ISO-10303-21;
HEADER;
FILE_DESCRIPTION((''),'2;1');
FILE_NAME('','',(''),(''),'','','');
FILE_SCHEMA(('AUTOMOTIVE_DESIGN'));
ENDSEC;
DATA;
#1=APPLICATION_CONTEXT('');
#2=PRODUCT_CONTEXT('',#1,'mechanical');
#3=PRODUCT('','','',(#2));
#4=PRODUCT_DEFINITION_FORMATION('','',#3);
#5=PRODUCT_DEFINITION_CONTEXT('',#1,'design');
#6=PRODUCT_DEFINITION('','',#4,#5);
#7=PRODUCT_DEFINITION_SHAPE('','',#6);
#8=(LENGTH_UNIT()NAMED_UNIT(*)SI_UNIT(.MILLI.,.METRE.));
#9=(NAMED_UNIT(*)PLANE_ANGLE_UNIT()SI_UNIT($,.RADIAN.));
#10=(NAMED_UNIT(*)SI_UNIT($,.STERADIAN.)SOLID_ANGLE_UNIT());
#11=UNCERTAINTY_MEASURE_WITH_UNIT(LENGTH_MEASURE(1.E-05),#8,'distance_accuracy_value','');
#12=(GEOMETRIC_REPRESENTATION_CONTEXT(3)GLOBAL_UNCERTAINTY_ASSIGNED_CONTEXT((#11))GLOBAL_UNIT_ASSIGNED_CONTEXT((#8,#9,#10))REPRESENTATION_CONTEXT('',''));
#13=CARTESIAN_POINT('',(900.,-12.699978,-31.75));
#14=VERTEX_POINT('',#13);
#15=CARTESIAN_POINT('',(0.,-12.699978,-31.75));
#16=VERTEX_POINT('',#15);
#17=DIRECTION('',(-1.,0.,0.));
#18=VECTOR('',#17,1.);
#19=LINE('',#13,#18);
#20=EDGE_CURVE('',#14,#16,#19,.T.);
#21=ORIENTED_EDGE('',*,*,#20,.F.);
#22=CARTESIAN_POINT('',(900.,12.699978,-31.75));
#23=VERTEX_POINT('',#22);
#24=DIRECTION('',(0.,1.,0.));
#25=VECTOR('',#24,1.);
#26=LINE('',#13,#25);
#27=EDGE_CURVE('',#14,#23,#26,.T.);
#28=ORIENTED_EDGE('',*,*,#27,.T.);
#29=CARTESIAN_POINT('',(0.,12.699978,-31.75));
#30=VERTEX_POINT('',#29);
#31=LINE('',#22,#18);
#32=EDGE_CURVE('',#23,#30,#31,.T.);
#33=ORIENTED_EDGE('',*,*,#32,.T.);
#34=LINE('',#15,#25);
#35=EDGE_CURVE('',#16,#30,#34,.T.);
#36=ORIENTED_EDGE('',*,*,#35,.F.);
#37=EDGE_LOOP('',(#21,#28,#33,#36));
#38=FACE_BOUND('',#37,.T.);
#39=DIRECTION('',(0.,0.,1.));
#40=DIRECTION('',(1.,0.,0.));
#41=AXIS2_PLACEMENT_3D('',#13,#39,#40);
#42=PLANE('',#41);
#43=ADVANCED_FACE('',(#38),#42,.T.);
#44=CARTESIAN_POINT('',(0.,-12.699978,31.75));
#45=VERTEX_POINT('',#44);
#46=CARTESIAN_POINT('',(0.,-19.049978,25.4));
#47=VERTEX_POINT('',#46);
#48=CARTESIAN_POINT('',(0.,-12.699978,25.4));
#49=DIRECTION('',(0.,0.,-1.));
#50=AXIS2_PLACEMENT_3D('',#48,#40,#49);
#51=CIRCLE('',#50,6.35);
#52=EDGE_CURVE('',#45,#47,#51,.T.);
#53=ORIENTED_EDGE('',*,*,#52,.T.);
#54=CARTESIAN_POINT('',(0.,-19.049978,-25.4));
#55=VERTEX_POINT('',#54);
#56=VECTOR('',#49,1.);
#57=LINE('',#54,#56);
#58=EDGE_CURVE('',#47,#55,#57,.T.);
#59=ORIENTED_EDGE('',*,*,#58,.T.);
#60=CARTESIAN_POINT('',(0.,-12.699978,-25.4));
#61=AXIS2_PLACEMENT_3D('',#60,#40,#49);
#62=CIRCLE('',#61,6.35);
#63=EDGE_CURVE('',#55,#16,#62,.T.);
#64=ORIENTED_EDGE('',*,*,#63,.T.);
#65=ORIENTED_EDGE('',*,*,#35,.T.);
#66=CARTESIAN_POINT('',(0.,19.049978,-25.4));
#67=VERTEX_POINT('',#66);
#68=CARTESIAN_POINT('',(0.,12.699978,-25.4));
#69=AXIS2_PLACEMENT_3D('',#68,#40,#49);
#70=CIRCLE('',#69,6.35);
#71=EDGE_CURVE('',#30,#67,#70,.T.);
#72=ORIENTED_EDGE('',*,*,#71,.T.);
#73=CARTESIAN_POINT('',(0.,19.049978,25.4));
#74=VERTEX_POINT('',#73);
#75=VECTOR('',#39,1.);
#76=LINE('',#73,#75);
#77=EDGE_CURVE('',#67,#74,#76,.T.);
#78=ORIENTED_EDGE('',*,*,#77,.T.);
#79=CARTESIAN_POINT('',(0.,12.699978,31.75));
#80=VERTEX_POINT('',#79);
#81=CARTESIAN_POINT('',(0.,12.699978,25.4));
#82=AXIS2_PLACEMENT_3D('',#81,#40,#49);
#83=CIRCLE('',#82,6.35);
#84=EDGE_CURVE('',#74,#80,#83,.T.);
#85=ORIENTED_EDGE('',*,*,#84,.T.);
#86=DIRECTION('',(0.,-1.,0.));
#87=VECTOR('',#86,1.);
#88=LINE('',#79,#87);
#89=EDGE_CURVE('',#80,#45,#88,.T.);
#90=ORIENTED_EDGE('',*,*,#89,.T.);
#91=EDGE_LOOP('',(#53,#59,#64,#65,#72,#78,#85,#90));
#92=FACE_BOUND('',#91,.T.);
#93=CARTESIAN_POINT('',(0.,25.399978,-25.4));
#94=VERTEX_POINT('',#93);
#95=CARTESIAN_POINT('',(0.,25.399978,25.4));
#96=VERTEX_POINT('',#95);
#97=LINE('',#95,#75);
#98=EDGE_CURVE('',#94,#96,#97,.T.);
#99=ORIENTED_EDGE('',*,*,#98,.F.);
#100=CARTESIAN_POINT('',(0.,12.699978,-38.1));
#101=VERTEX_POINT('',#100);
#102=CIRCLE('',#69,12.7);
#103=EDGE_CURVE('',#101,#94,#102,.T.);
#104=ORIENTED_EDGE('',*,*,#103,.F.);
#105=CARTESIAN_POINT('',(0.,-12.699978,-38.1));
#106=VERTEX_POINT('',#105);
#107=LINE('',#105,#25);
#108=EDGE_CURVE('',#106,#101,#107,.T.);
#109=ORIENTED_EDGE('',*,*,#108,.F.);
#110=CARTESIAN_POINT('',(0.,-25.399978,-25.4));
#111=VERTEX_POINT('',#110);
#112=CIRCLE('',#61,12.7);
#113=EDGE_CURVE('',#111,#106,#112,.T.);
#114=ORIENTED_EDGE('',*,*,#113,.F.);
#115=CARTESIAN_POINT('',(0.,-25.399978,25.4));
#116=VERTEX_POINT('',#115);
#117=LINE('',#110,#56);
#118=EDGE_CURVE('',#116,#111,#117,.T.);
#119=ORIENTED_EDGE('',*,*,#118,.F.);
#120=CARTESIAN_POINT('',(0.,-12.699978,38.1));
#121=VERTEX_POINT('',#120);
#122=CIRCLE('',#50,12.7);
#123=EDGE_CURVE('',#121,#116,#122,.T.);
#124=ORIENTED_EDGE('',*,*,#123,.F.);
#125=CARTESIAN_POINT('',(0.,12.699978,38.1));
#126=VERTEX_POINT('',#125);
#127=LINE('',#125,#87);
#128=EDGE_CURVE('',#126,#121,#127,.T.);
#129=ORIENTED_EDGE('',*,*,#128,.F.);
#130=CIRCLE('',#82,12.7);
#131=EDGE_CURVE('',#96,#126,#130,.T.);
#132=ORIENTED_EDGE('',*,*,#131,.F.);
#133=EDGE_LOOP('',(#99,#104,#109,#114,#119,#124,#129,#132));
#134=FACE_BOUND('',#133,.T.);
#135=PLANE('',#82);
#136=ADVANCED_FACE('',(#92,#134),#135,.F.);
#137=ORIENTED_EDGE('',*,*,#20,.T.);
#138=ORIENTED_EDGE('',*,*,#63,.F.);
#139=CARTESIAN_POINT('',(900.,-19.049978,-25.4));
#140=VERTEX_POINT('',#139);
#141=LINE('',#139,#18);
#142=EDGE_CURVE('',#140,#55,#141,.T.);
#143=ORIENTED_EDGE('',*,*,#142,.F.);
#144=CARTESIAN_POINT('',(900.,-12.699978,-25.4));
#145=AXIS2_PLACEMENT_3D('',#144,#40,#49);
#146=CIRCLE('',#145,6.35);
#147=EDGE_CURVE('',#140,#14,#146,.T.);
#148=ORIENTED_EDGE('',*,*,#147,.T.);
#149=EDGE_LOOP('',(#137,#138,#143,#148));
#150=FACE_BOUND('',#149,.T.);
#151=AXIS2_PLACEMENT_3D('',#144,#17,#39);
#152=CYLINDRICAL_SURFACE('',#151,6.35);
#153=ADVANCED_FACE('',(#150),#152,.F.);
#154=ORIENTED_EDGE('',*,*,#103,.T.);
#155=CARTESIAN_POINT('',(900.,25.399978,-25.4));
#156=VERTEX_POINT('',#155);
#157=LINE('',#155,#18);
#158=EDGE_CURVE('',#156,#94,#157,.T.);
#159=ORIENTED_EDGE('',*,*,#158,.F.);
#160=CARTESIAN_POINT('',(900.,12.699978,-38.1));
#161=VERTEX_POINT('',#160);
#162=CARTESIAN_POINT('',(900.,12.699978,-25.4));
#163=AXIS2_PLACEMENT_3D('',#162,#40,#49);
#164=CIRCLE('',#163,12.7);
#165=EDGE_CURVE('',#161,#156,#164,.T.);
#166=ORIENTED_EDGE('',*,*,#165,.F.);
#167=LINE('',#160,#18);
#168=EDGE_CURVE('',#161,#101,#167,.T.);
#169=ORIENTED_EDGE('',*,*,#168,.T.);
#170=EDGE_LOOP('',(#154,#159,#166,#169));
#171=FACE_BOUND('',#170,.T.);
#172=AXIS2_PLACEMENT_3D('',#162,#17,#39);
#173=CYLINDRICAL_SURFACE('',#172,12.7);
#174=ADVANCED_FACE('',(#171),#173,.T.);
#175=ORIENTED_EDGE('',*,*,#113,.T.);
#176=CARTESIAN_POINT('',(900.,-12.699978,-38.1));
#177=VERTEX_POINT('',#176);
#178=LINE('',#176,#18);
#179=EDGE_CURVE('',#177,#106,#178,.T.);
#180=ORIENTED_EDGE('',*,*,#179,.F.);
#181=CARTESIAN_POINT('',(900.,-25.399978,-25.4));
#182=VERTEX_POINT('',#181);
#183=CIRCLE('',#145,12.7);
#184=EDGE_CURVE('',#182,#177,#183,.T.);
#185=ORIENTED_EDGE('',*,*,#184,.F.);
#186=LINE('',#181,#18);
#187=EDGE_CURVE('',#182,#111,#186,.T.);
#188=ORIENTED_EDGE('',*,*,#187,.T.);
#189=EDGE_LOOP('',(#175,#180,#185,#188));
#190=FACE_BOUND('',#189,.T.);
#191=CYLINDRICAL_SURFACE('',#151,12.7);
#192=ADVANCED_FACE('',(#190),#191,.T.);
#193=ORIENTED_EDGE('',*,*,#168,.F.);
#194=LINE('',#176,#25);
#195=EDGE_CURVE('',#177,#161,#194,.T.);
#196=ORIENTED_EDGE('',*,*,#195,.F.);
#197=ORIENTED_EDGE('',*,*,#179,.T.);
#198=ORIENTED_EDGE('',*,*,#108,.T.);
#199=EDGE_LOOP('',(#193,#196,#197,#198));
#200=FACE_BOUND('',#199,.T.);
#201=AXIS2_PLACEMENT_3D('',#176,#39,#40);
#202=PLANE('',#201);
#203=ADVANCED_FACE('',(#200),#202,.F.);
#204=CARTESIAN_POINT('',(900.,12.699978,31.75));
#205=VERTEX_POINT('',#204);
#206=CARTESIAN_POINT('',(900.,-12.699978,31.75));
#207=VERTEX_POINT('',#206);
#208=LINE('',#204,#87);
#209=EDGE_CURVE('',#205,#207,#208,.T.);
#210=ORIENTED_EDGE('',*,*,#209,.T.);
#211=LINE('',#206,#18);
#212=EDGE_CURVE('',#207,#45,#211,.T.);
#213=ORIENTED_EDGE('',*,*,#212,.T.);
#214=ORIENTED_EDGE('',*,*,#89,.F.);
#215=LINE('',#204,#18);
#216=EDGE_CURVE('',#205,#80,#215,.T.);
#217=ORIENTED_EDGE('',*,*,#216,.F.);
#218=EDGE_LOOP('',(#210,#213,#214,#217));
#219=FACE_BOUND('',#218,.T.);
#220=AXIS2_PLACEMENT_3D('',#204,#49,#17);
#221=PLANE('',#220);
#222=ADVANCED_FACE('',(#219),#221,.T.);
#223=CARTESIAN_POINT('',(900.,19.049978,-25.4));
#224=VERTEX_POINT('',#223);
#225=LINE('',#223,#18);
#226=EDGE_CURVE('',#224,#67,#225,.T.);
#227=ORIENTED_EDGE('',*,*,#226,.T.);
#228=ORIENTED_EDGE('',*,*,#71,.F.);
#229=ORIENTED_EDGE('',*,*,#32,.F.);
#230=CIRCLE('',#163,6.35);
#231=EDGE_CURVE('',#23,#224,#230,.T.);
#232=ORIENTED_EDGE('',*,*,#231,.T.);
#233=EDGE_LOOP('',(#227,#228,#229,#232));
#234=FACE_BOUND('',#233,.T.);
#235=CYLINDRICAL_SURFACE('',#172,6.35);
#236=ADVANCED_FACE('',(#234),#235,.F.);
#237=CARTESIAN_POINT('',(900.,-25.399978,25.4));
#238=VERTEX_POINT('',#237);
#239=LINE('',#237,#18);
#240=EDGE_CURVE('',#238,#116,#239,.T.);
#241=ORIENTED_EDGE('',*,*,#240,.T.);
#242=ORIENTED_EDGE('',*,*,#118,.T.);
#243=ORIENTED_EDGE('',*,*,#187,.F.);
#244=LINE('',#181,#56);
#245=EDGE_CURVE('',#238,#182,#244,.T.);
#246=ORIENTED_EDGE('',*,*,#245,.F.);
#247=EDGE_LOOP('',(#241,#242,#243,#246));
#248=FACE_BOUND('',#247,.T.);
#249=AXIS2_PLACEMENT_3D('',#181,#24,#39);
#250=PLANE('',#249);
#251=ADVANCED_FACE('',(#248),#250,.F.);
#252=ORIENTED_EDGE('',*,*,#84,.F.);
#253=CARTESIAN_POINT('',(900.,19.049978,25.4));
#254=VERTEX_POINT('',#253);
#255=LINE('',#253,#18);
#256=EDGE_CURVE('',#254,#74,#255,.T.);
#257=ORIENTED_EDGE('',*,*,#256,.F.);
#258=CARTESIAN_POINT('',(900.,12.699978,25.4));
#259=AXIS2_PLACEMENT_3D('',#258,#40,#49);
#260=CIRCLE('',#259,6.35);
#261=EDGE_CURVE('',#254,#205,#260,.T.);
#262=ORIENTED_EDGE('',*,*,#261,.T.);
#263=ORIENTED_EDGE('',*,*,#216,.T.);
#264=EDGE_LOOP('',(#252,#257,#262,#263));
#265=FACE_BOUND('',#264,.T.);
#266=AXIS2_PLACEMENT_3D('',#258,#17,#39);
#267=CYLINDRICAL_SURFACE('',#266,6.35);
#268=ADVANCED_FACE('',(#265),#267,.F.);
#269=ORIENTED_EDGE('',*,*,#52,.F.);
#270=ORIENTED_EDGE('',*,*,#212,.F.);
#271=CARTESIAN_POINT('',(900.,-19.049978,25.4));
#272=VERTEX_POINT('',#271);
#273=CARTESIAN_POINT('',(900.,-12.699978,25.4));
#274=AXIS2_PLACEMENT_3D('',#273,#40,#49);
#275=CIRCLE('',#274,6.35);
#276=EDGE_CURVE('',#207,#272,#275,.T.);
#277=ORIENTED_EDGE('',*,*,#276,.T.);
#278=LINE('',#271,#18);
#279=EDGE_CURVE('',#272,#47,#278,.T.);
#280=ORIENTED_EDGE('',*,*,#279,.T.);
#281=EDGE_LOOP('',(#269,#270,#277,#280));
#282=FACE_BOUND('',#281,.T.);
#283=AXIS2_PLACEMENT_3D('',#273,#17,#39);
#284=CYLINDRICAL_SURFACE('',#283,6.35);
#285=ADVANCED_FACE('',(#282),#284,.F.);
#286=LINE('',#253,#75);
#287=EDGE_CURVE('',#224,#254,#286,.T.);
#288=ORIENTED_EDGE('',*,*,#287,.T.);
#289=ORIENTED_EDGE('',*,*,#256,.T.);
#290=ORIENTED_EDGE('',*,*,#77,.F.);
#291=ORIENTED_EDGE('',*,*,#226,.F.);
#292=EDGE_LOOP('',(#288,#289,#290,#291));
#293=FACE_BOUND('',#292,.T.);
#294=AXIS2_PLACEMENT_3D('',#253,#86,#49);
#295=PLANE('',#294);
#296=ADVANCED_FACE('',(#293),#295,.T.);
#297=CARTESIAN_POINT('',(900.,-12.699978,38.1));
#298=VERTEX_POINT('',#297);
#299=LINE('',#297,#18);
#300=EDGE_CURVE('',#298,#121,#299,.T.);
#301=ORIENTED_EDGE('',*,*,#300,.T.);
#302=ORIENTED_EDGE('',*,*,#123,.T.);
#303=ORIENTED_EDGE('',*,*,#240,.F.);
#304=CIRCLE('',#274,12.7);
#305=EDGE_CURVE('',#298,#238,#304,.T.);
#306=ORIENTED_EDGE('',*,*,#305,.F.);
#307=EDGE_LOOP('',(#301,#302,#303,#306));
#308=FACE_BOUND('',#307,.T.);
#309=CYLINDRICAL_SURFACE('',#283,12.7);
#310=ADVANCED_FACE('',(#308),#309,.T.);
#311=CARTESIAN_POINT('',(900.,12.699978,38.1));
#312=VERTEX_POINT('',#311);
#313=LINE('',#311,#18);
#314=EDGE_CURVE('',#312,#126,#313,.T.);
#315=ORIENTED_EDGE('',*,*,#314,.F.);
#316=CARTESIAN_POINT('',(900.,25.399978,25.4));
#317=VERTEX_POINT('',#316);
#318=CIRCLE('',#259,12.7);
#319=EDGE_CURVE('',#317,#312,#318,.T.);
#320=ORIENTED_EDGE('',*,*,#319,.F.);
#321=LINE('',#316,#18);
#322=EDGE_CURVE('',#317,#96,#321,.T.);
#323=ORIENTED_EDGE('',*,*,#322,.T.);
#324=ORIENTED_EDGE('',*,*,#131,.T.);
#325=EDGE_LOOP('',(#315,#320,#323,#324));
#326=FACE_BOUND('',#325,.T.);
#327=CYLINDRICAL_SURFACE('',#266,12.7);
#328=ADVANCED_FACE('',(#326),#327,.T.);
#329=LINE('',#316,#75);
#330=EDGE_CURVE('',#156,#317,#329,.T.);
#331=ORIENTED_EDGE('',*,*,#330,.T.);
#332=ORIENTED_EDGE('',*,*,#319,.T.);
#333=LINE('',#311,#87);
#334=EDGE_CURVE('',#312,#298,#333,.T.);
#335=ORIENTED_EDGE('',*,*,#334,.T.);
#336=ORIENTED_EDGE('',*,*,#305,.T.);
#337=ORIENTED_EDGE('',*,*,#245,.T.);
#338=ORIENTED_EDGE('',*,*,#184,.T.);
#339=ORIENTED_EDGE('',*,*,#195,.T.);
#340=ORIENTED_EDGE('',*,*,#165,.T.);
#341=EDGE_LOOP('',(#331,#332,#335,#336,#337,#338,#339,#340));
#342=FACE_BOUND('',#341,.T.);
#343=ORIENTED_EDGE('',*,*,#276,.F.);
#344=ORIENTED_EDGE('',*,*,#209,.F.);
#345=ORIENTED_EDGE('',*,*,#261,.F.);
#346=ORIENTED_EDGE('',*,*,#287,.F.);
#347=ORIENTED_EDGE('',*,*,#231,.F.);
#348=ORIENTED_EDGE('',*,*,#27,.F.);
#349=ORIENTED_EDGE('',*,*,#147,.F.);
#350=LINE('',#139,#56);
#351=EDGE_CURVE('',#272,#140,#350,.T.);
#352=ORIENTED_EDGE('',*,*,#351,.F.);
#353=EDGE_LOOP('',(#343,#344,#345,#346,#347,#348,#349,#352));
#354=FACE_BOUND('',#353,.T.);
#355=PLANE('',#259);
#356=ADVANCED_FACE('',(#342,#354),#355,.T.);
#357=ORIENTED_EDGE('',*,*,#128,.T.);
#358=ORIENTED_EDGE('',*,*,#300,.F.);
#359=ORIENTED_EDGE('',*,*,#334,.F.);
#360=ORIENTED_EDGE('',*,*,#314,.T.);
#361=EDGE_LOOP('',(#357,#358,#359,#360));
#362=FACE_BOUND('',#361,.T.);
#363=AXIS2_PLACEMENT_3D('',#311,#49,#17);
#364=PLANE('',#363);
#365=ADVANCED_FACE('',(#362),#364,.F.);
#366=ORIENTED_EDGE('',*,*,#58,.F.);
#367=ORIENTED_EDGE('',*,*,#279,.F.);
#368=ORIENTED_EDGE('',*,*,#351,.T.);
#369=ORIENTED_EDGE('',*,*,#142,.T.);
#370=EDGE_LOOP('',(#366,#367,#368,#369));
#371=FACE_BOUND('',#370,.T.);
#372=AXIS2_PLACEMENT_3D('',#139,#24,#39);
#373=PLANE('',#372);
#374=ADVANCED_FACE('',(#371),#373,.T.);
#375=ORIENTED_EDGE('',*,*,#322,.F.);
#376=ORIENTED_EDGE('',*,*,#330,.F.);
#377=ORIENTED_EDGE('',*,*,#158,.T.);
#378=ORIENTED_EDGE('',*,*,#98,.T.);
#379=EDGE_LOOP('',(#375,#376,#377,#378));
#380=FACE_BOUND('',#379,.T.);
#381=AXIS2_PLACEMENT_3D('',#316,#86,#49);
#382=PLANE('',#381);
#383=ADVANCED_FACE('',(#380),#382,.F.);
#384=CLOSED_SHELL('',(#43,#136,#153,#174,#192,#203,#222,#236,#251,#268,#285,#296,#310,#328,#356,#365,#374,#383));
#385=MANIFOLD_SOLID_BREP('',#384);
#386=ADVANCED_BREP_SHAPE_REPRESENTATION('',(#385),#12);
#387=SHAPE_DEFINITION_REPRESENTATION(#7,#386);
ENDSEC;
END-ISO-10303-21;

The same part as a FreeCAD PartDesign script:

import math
import FreeCAD as App
import Part
import Sketcher

V = App.Vector
Q = App.Units.Quantity

doc = App.newDocument("Part")
body = doc.addObject("PartDesign::Body", "Body")

# Sketch on YZ plane
sketch1 = body.newObject("Sketcher::SketchObject", "Sketch")
sketch1.AttachmentSupport = (doc.getObject("YZ_Plane"), [""])
sketch1.MapMode = "FlatFace"
sketch1.addGeometry(Part.LineSegment(V(-13, -38, 0), V(13, -38, 0)), False)
sketch1.addGeometry(Part.ArcOfCircle(Part.Circle(V(13, -25, 0), V(0, 0, 1), 13), math.radians(-90), math.radians(0)), False)
sketch1.addGeometry(Part.LineSegment(V(25, -25, 0), V(25, 25, 0)), False)
sketch1.addGeometry(Part.ArcOfCircle(Part.Circle(V(13, 25, 0), V(0, 0, 1), 13), math.radians(0), math.radians(90)), False)
sketch1.addGeometry(Part.LineSegment(V(13, 38, 0), V(-13, 38, 0)), False)
sketch1.addGeometry(Part.ArcOfCircle(Part.Circle(V(-13, 25, 0), V(0, 0, 1), 13), math.radians(90), math.radians(180)), False)
sketch1.addGeometry(Part.LineSegment(V(-25, 25, 0), V(-25, -25, 0)), False)
sketch1.addGeometry(Part.ArcOfCircle(Part.Circle(V(-13, -25, 0), V(0, 0, 1), 13), math.radians(180), math.radians(270)), False)
sketch1.addGeometry(Part.LineSegment(V(13, -32, 0), V(-13, -32, 0)), False)
sketch1.addGeometry(Part.ArcOfCircle(Part.Circle(V(-13, -25, 0), V(0, 0, 1), 6), math.radians(180), math.radians(270)), False)
sketch1.addGeometry(Part.LineSegment(V(-19, -25, 0), V(-19, 25, 0)), False)
sketch1.addGeometry(Part.ArcOfCircle(Part.Circle(V(-13, 25, 0), V(0, 0, 1), 6), math.radians(90), math.radians(180)), False)
sketch1.addGeometry(Part.LineSegment(V(-13, 32, 0), V(13, 32, 0)), False)
sketch1.addGeometry(Part.ArcOfCircle(Part.Circle(V(13, 25, 0), V(0, 0, 1), 6), math.radians(0), math.radians(90)), False)
sketch1.addGeometry(Part.LineSegment(V(19, 25, 0), V(19, -25, 0)), False)
sketch1.addGeometry(Part.ArcOfCircle(Part.Circle(V(13, -25, 0), V(0, 0, 1), 6), math.radians(-90), math.radians(0)), False)
sketch1.addConstraint(Sketcher.Constraint("Tangent", 0, 2, 1, 1))
sketch1.addConstraint(Sketcher.Constraint("Tangent", 1, 2, 2, 1))
sketch1.addConstraint(Sketcher.Constraint("Tangent", 2, 2, 3, 1))
sketch1.addConstraint(Sketcher.Constraint("Tangent", 3, 2, 4, 1))
sketch1.addConstraint(Sketcher.Constraint("Tangent", 4, 2, 5, 1))
sketch1.addConstraint(Sketcher.Constraint("Tangent", 5, 2, 6, 1))
sketch1.addConstraint(Sketcher.Constraint("Tangent", 6, 2, 7, 1))
sketch1.addConstraint(Sketcher.Constraint("Tangent", 7, 2, 0, 1))
sketch1.addConstraint(Sketcher.Constraint("Tangent", 8, 2, 9, 2))
sketch1.addConstraint(Sketcher.Constraint("Tangent", 9, 1, 10, 1))
sketch1.addConstraint(Sketcher.Constraint("Tangent", 10, 2, 11, 2))
sketch1.addConstraint(Sketcher.Constraint("Tangent", 11, 1, 12, 1))
sketch1.addConstraint(Sketcher.Constraint("Tangent", 12, 2, 13, 2))
sketch1.addConstraint(Sketcher.Constraint("Tangent", 13, 1, 14, 1))
sketch1.addConstraint(Sketcher.Constraint("Tangent", 14, 2, 15, 2))
sketch1.addConstraint(Sketcher.Constraint("Tangent", 15, 1, 8, 1))
sketch1.addConstraint(Sketcher.Constraint("Horizontal", 0))
sketch1.addConstraint(Sketcher.Constraint("Vertical", 2))
sketch1.addConstraint(Sketcher.Constraint("Horizontal", 4))
sketch1.addConstraint(Sketcher.Constraint("Vertical", 6))
sketch1.addConstraint(Sketcher.Constraint("Horizontal", 8))
sketch1.addConstraint(Sketcher.Constraint("Vertical", 10))
sketch1.addConstraint(Sketcher.Constraint("Horizontal", 12))
sketch1.addConstraint(Sketcher.Constraint("Vertical", 14))
sketch1.addConstraint(Sketcher.Constraint("Coincident", 9, 3, 7, 3))
sketch1.addConstraint(Sketcher.Constraint("Coincident", 11, 3, 5, 3))
sketch1.addConstraint(Sketcher.Constraint("Coincident", 13, 3, 3, 3))
sketch1.addConstraint(Sketcher.Constraint("Equal", 1, 3))
sketch1.addConstraint(Sketcher.Constraint("Equal", 3, 5))
sketch1.addConstraint(Sketcher.Constraint("Equal", 5, 7))
sketch1.addConstraint(Sketcher.Constraint("Equal", 13, 15))
sketch1.addConstraint(Sketcher.Constraint("Symmetric", 1, 3, 5, 3, -1, 1))
sketch1.addConstraint(Sketcher.Constraint("Radius", 1, Q("0.5 in")))
sketch1.addConstraint(Sketcher.Constraint("DistanceY", 2, 1, 2, 2, Q("2 in")))
sketch1.addConstraint(Sketcher.Constraint("Radius", 9, Q("0.25 in")))
sketch1.addConstraint(Sketcher.Constraint("DistanceX", 0, 1, 0, 2, Q("25.399956 mm")))
pad1 = body.newObject("PartDesign::Pad", "Pad")
pad1.Profile = sketch1
pad1.Length = 900

doc.recompute()
